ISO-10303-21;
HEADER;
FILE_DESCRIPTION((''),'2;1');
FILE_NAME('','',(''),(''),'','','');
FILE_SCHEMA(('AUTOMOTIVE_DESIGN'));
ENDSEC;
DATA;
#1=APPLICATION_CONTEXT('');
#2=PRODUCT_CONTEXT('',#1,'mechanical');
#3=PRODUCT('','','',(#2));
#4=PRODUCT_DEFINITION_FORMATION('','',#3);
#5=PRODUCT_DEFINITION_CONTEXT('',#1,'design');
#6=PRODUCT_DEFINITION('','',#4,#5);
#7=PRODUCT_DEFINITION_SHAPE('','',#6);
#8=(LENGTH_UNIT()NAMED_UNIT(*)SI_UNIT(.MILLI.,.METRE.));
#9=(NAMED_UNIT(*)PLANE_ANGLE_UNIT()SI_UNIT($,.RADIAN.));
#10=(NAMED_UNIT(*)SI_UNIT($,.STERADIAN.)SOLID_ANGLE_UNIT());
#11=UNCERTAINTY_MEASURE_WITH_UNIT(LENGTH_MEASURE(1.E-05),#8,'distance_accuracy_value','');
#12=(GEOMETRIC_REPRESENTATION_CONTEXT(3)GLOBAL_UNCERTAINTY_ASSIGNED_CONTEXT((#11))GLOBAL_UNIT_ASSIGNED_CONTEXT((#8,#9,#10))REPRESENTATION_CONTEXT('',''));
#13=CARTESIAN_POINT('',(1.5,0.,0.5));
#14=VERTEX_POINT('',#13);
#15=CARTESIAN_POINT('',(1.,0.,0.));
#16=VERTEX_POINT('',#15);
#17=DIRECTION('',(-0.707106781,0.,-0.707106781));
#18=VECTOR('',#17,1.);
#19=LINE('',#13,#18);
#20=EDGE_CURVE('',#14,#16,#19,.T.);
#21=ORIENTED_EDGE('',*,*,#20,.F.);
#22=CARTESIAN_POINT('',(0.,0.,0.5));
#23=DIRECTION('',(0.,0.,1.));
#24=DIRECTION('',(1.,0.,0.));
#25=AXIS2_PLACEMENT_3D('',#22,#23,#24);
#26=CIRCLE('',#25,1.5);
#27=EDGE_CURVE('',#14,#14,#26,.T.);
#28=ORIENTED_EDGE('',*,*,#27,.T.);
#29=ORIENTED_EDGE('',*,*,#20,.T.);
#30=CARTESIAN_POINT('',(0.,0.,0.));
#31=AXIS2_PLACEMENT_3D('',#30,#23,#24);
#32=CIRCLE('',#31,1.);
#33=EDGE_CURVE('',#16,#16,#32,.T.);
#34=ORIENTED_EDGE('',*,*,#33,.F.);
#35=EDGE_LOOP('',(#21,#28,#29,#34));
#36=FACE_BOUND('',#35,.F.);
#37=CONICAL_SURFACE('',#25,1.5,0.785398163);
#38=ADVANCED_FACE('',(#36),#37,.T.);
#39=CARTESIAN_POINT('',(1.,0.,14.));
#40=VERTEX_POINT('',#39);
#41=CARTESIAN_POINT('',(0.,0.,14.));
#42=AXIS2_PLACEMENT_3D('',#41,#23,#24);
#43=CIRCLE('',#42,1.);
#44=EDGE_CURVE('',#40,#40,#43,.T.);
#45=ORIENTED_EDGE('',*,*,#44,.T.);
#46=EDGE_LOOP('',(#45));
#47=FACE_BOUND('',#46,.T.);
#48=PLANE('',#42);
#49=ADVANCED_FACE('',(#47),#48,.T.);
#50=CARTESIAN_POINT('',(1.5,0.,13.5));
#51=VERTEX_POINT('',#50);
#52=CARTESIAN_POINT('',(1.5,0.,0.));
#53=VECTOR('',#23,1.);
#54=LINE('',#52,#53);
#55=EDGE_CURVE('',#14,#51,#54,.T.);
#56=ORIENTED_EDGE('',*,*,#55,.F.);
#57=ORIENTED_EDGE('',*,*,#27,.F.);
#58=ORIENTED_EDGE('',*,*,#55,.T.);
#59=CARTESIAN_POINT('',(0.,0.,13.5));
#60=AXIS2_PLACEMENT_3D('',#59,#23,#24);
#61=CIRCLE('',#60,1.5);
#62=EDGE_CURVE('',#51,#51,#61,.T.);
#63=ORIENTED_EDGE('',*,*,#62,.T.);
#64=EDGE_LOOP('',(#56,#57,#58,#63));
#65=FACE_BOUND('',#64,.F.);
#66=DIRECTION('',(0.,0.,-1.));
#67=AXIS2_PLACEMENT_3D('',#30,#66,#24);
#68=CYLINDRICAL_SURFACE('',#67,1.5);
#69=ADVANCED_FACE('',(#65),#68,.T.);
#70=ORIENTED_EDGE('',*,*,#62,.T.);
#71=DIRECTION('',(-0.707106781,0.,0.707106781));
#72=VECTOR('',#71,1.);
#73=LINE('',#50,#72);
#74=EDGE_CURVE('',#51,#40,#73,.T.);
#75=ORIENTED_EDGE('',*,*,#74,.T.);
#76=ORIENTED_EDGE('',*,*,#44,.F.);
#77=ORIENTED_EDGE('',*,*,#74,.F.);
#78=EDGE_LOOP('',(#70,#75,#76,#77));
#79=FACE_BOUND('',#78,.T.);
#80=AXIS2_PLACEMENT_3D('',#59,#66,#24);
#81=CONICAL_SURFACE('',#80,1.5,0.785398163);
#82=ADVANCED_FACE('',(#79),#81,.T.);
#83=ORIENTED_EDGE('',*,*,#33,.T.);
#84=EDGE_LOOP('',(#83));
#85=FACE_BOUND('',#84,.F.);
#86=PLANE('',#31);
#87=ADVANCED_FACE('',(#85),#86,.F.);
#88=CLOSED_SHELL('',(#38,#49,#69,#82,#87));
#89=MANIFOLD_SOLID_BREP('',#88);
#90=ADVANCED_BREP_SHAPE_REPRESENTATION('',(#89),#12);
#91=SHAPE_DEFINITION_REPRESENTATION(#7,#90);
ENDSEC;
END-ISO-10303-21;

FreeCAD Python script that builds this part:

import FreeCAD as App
import Part
import Sketcher


def edges_at(feature, points):
    """Names of the edges that pass closest to the given points."""
    edges = feature.Shape.Edges
    near = lambda p: min(range(len(edges)), key=lambda i: edges[i].distToShape(Part.Vertex(*p))[0])
    return sorted({f"Edge{near(p) + 1}" for p in points})

doc = App.newDocument("Part")
body = doc.addObject("PartDesign::Body", "Body")

sketch1 = body.newObject("Sketcher::SketchObject", "Sketch")
sketch1.AttachmentSupport = (doc.getObject("XY_Plane"), [""])
sketch1.MapMode = "FlatFace"
sketch1.addGeometry(Part.Circle(App.Vector(0, 0, 0), App.Vector(0, 0, 1), 1.5), False)
sketch1.addConstraint(Sketcher.Constraint("Coincident", 0, 3, -1, 1))
sketch1.addConstraint(Sketcher.Constraint("Diameter", 0, 3.0))
pad1 = body.newObject("PartDesign::Pad", "Pad")
pad1.Profile = sketch1
pad1.Length = 14
doc.recompute()

chamfer = body.newObject("PartDesign::Chamfer", "Chamfer")
chamfer.Base = (pad1, edges_at(pad1, [(-1.5, 0, 14), (-1.5, 0, 0)]))
chamfer.Size = 0.5

doc.recompute()
